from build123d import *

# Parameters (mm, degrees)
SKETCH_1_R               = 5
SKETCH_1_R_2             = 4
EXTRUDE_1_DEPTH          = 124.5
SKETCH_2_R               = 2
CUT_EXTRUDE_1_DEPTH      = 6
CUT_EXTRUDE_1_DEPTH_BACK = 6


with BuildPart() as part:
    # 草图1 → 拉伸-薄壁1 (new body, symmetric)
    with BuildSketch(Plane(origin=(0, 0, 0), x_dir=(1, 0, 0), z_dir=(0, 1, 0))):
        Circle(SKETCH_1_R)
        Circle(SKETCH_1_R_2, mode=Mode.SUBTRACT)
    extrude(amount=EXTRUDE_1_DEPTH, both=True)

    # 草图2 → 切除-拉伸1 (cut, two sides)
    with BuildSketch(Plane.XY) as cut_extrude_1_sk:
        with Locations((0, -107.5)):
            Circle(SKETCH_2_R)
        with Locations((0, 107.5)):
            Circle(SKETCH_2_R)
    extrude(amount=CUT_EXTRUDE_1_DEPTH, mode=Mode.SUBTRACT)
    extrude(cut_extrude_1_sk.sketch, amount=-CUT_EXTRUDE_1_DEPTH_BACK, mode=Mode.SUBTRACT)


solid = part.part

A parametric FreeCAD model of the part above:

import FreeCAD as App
import Part
import Sketcher

doc = App.newDocument("Part")
body = doc.addObject("PartDesign::Body", "Body")

# Sketch on XZ plane
sketch1 = body.newObject("Sketcher::SketchObject", "Sketch")
sketch1.AttachmentSupport = (doc.getObject("XZ_Plane"), [""])
sketch1.MapMode = "FlatFace"
sketch1.addGeometry([
    Part.Circle(App.Vector(0, 0, 0), App.Vector(0, 0, 1), 5),
    Part.Circle(App.Vector(0, 0, 0), App.Vector(0, 0, 1), 4),
], False)
sketch1.addConstraint([
    Sketcher.Constraint("Coincident", 0, 3, -1, 1),
    Sketcher.Constraint("Coincident", 1, 3, -1, 1),
    Sketcher.Constraint("Diameter", 0, 10.0),
    Sketcher.Constraint("Diameter", 1, 8.0),
])
pad1 = body.newObject("PartDesign::Pad", "Pad")
pad1.Profile = sketch1
pad1.Length = 249
pad1.Midplane = True

# Sketch on XY plane
sketch2 = body.newObject("Sketcher::SketchObject", "Sketch001")
sketch2.AttachmentSupport = (doc.getObject("XY_Plane"), [""])
sketch2.MapMode = "FlatFace"
sketch2.addGeometry([
    Part.Circle(App.Vector(0, -107.5, 0), App.Vector(0, 0, 1), 2),
    Part.Circle(App.Vector(0, 107.5, 0), App.Vector(0, 0, 1), 2),
], False)
sketch2.addConstraint([
    Sketcher.Constraint("Equal", 0, 1),
    Sketcher.Constraint("Symmetric", 0, 3, 1, 3, -1, 1),
    Sketcher.Constraint("PointOnObject", 0, 3, -2),
    Sketcher.Constraint("Diameter", 0, 4.0),
    Sketcher.Constraint("DistanceY", 0, 3, 1, 3, 215.0),
])
pocket1 = body.newObject("PartDesign::Pocket", "Pocket")
pocket1.Profile = sketch2
pocket1.Type = "ThroughAll"
pocket1.Midplane = True

doc.recompute()
